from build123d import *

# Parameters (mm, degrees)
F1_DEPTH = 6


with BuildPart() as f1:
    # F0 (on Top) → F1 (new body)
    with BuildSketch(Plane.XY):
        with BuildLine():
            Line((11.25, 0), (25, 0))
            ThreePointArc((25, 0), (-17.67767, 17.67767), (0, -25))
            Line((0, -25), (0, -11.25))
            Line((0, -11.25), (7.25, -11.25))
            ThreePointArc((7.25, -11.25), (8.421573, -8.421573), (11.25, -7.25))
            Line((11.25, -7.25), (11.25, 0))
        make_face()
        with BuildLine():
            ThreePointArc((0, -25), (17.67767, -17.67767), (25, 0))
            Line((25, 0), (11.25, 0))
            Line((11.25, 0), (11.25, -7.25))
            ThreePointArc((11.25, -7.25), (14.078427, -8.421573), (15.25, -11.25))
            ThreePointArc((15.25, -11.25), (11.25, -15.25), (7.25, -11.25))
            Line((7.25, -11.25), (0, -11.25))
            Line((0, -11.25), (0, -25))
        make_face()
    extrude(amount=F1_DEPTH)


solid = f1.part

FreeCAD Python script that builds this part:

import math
import FreeCAD as App
import Part
import Sketcher
from FreeCAD import Vector

doc = App.newDocument("Part")
body = doc.addObject("PartDesign::Body", "Body")

# Sketch on XY plane
sketch1 = doc.addObject("Sketcher::SketchObject", "Sketch")
body.addObject(sketch1)
sketch1.AttachmentSupport = (doc.XY_Plane, [""])
sketch1.MapMode = "FlatFace"
sketch1.addGeometry([
    Part.ArcOfCircle(Part.Circle(Vector(0, 0, 0), Vector(0, 0, 1), 25), math.radians(0), math.radians(270)),  # 0
    Part.ArcOfCircle(Part.Circle(Vector(0, 0, 0), Vector(0, 0, 1), 25), math.radians(-90), math.radians(0)),  # 1
    Part.ArcOfCircle(Part.Circle(Vector(11.3, -11.3, 0), Vector(0, 0, 1), 4), math.radians(90), math.radians(180)),  # 2
    Part.ArcOfCircle(Part.Circle(Vector(11.2, -11.3, 0), Vector(0, 0, 1), 4), math.radians(0), math.radians(90)),  # 3
    Part.ArcOfCircle(Part.Circle(Vector(11.2, -11.2, 0), Vector(0, 0, 1), 4), math.radians(180), math.radians(360)),  # 4
], False)
sketch1.addConstraint([
    Sketcher.Constraint("Tangent", 0, 1, 1, 2),
    Sketcher.Constraint("Coincident", 1, 1, 0, 2),
    Sketcher.Constraint("Tangent", 2, 1, 3, 2),
    Sketcher.Constraint("Tangent", 3, 1, 4, 2),
    Sketcher.Constraint("Tangent", 4, 1, 2, 2),
    Sketcher.Constraint("Coincident", 0, 3, -1, 1),
    Sketcher.Constraint("PointOnObject", 0, 1, -1),
    Sketcher.Constraint("PointOnObject", 1, 1, -2),
    Sketcher.Constraint("Horizontal", 4, 3, 3, 1),
    Sketcher.Constraint("Horizontal", 3, 1, 4, 1),
    Sketcher.Constraint("Vertical", 4, 3, 2, 1),
    Sketcher.Constraint("Radius", 0, 25.0),
    Sketcher.Constraint("Radius", 2, 4.0),
    Sketcher.Constraint("DistanceX", -1, 1, 2, 3, 11.25),
    Sketcher.Constraint("DistanceY", 2, 3, -1, 1, 11.25),
])
pad1 = doc.addObject("PartDesign::Pad", "Pad")
body.addObject(pad1)
pad1.Profile = sketch1
pad1.Length = 6

doc.recompute()
